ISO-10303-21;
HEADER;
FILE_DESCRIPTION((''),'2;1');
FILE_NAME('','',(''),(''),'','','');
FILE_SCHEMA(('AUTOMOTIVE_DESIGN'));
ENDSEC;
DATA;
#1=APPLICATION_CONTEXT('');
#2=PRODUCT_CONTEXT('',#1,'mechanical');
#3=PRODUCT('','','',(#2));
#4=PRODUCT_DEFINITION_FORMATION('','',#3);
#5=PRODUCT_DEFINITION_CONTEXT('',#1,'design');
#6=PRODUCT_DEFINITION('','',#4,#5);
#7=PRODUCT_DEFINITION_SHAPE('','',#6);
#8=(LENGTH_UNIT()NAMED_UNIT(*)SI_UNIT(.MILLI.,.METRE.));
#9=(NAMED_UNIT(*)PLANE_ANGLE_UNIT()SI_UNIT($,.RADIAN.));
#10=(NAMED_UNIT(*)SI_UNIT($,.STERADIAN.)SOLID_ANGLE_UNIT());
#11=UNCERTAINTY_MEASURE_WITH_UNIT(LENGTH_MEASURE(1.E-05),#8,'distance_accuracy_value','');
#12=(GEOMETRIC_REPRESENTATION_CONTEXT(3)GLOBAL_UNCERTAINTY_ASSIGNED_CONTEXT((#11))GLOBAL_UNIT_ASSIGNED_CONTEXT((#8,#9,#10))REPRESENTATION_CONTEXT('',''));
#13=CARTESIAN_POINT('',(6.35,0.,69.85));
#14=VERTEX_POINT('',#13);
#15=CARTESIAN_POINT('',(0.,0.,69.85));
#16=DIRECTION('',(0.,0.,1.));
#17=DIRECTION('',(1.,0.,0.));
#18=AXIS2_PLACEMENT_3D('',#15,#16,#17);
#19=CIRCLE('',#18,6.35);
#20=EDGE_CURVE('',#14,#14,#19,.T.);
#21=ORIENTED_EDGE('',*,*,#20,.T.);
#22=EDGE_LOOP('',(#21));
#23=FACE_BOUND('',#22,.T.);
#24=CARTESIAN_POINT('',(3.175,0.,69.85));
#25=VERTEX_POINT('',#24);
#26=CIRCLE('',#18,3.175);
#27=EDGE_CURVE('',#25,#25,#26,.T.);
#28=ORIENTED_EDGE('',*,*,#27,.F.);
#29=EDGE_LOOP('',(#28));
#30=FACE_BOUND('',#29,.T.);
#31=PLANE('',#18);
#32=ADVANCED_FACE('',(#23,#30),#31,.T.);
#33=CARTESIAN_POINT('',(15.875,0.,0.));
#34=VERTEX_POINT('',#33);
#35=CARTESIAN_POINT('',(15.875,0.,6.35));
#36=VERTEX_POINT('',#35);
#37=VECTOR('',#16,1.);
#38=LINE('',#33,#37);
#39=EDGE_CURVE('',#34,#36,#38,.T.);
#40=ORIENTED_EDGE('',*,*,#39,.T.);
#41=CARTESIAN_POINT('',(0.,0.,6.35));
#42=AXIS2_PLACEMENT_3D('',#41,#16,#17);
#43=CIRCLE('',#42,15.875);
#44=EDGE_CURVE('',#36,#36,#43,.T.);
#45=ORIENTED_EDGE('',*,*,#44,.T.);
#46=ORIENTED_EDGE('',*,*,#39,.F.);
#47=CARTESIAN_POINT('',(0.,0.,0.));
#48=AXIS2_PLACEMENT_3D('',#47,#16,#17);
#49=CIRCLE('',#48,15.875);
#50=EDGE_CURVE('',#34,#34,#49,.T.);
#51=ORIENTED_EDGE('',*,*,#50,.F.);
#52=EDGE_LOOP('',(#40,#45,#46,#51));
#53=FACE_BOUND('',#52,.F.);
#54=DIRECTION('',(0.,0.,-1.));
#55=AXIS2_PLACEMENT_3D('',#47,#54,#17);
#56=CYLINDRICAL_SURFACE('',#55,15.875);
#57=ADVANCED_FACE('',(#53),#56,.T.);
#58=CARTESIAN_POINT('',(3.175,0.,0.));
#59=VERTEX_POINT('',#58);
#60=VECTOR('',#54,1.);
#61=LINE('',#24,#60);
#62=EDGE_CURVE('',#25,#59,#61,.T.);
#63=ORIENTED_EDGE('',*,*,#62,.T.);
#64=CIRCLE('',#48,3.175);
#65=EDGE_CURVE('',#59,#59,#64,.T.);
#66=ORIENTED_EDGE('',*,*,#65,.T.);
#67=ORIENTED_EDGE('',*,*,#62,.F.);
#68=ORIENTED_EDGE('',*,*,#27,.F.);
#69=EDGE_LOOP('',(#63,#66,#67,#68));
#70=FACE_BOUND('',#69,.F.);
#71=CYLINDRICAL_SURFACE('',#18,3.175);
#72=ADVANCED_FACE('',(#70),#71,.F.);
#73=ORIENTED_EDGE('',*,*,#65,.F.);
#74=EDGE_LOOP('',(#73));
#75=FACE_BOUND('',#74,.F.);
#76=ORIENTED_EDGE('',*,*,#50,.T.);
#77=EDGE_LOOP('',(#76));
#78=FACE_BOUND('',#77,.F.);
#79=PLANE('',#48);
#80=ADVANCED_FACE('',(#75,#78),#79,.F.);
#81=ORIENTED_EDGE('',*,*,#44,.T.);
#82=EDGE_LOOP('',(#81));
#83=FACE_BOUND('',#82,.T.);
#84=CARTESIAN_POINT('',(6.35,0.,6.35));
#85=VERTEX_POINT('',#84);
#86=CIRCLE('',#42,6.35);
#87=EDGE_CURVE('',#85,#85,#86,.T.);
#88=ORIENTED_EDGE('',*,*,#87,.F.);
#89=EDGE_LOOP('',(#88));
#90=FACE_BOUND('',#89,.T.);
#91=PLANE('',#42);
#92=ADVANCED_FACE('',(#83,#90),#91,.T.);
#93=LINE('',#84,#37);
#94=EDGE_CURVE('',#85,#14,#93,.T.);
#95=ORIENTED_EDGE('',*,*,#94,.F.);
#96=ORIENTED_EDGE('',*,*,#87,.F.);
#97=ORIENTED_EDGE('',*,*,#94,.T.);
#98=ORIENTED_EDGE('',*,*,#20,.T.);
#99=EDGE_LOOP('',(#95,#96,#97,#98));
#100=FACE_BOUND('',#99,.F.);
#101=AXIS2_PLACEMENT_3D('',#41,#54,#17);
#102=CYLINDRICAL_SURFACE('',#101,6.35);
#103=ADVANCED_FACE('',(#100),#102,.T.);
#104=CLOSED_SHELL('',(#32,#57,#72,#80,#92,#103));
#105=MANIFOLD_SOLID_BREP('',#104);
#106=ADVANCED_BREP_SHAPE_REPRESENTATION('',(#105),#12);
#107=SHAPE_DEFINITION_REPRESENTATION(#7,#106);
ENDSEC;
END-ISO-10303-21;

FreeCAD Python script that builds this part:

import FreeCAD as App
import Part
import Sketcher
Q = App.Units.Quantity

doc = App.newDocument("Part")
body = doc.addObject("PartDesign::Body", "Body")

# Sketch on XY plane
sketch1 = body.newObject("Sketcher::SketchObject", "Sketch")
sketch1.AttachmentSupport = (doc.getObject("XY_Plane"), [""])
sketch1.MapMode = "FlatFace"
sketch1.addGeometry(Part.Circle(App.Vector(0, 0, 0), App.Vector(0, 0, 1), 16), False)
sketch1.addConstraint([
    Sketcher.Constraint("Coincident", 0, 3, -1, 1),
    Sketcher.Constraint("Diameter", 0, Q("1.25 in")),
])
pad1 = body.newObject("PartDesign::Pad", "Pad")
pad1.Profile = sketch1
pad1.Length = Q("0.25 in")

# Sketch on XY plane
sketch2 = body.newObject("Sketcher::SketchObject", "Sketch001")
sketch2.AttachmentSupport = (doc.getObject("XY_Plane"), [""])
sketch2.MapMode = "FlatFace"
sketch2.AttachmentOffset = App.Placement(App.Vector(0, 0, 0.25 * 25.4), App.Rotation())
sketch2.addGeometry(Part.Circle(App.Vector(0, 0, 0), App.Vector(0, 0, 1), 6), False)
sketch2.addConstraint([
    Sketcher.Constraint("Coincident", 0, 3, -1, 1),
    Sketcher.Constraint("Diameter", 0, Q("0.5 in")),
])
pad2 = body.newObject("PartDesign::Pad", "Pad001")
pad2.Profile = sketch2
pad2.Length = Q("2.5 in")

# Sketch on XY plane
sketch3 = body.newObject("Sketcher::SketchObject", "Sketch002")
sketch3.AttachmentSupport = (doc.getObject("XY_Plane"), [""])
sketch3.MapMode = "FlatFace"
sketch3.AttachmentOffset = App.Placement(App.Vector(0, 0, 2.75 * 25.4), App.Rotation())
sketch3.addGeometry(Part.Circle(App.Vector(0, 0, 0), App.Vector(0, 0, 1), 3.2), False)
sketch3.addConstraint([
    Sketcher.Constraint("Coincident", 0, 3, -1, 1),
    Sketcher.Constraint("Diameter", 0, Q("0.25 in")),
])
pocket1 = body.newObject("PartDesign::Pocket", "Pocket")
pocket1.Profile = sketch3
pocket1.Type = "ThroughAll"

doc.recompute()
